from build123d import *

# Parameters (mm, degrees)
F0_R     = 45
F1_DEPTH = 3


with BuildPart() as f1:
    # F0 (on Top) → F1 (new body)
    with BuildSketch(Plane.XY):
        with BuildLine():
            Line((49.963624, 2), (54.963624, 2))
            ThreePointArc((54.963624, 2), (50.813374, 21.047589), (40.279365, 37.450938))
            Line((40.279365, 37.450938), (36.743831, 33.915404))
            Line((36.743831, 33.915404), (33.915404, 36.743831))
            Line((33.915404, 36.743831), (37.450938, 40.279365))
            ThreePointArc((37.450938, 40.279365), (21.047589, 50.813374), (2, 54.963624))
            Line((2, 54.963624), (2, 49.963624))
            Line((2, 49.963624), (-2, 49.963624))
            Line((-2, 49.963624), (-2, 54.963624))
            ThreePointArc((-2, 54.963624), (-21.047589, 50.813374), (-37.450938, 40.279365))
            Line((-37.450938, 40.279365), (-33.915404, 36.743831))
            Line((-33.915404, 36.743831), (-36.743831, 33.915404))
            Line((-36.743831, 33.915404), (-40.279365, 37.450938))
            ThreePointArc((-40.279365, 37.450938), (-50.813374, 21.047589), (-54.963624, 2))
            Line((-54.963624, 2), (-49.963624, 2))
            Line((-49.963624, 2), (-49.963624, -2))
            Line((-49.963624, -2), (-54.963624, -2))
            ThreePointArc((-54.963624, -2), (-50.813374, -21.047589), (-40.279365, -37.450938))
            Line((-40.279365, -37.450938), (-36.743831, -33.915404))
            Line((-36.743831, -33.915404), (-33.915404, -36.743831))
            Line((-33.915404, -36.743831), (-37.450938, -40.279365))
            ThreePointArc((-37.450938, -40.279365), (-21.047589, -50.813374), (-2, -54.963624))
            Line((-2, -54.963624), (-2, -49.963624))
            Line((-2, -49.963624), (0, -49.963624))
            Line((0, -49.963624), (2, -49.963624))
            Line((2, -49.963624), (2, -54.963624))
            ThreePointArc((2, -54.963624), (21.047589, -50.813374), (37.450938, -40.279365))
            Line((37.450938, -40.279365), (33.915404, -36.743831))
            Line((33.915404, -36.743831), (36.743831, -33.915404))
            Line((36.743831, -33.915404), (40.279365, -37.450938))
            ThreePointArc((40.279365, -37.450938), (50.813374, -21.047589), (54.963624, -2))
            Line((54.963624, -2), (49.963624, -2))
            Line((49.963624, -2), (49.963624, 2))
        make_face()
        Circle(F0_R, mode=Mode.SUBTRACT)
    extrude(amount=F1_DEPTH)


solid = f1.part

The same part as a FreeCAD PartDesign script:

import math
import FreeCAD as App
import Part
import Sketcher

doc = App.newDocument("Part")
body = doc.addObject("PartDesign::Body", "Body")

# Sketch on XY plane
sketch1 = doc.addObject("Sketcher::SketchObject", "Sketch")
body.addObject(sketch1)
sketch1.AttachmentSupport = (doc.XY_Plane, [""])
sketch1.MapMode = "FlatFace"
sketch1.addGeometry(Part.LineSegment(App.Vector(50, 2, 0), App.Vector(55, 2, 0)), False)
sketch1.addGeometry(Part.ArcOfCircle(Part.Circle(App.Vector(0, 0, 0), App.Vector(0, 0, 1), 55), math.radians(2), math.radians(43)), False)
sketch1.addGeometry(Part.LineSegment(App.Vector(40.3, 37.5, 0), App.Vector(36.7, 33.9, 0)), False)
sketch1.addGeometry(Part.LineSegment(App.Vector(36.7, 33.9, 0), App.Vector(33.9, 36.7, 0)), False)
sketch1.addGeometry(Part.LineSegment(App.Vector(33.9, 36.7, 0), App.Vector(37.5, 40.3, 0)), False)
sketch1.addGeometry(Part.ArcOfCircle(Part.Circle(App.Vector(0, 0, 0), App.Vector(0, 0, 1), 55), math.radians(47), math.radians(88)), False)
sketch1.addGeometry(Part.LineSegment(App.Vector(2, 55, 0), App.Vector(2, 50, 0)), False)
sketch1.addGeometry(Part.LineSegment(App.Vector(2, 50, 0), App.Vector(-2, 50, 0)), False)
sketch1.addGeometry(Part.LineSegment(App.Vector(-2, 50, 0), App.Vector(-2, 55, 0)), False)
sketch1.addGeometry(Part.ArcOfCircle(Part.Circle(App.Vector(0, 0, 0), App.Vector(0, 0, 1), 55), math.radians(92), math.radians(133)), False)
sketch1.addGeometry(Part.LineSegment(App.Vector(-37.5, 40.3, 0), App.Vector(-33.9, 36.7, 0)), False)
sketch1.addGeometry(Part.LineSegment(App.Vector(-33.9, 36.7, 0), App.Vector(-36.7, 33.9, 0)), False)
sketch1.addGeometry(Part.LineSegment(App.Vector(-36.7, 33.9, 0), App.Vector(-40.3, 37.5, 0)), False)
sketch1.addGeometry(Part.ArcOfCircle(Part.Circle(App.Vector(0, 0, 0), App.Vector(0, 0, 1), 55), math.radians(137), math.radians(178)), False)
sketch1.addGeometry(Part.LineSegment(App.Vector(-55, 2, 0), App.Vector(-50, 2, 0)), False)
sketch1.addGeometry(Part.LineSegment(App.Vector(-50, 2, 0), App.Vector(-50, -2, 0)), False)
sketch1.addGeometry(Part.LineSegment(App.Vector(-50, -2, 0), App.Vector(-55, -2, 0)), False)
sketch1.addGeometry(Part.ArcOfCircle(Part.Circle(App.Vector(0, 0, 0), App.Vector(0, 0, 1), 55), math.radians(-178), math.radians(-137)), False)
sketch1.addGeometry(Part.LineSegment(App.Vector(-40.3, -37.5, 0), App.Vector(-36.7, -33.9, 0)), False)
sketch1.addGeometry(Part.LineSegment(App.Vector(-36.7, -33.9, 0), App.Vector(-33.9, -36.7, 0)), False)
sketch1.addGeometry(Part.LineSegment(App.Vector(-33.9, -36.7, 0), App.Vector(-37.5, -40.3, 0)), False)
sketch1.addGeometry(Part.ArcOfCircle(Part.Circle(App.Vector(0, 0, 0), App.Vector(0, 0, 1), 55), math.radians(-133), math.radians(-92)), False)
sketch1.addGeometry(Part.LineSegment(App.Vector(-2, -55, 0), App.Vector(-2, -50, 0)), False)
sketch1.addGeometry(Part.LineSegment(App.Vector(-2, -50, 0), App.Vector(2, -50, 0)), False)
sketch1.addGeometry(Part.LineSegment(App.Vector(2, -50, 0), App.Vector(2, -55, 0)), False)
sketch1.addGeometry(Part.ArcOfCircle(Part.Circle(App.Vector(0, 0, 0), App.Vector(0, 0, 1), 55), math.radians(-88), math.radians(-47)), False)
sketch1.addGeometry(Part.LineSegment(App.Vector(37.5, -40.3, 0), App.Vector(33.9, -36.7, 0)), False)
sketch1.addGeometry(Part.LineSegment(App.Vector(33.9, -36.7, 0), App.Vector(36.7, -33.9, 0)), False)
sketch1.addGeometry(Part.LineSegment(App.Vector(36.7, -33.9, 0), App.Vector(40.3, -37.5, 0)), False)
sketch1.addGeometry(Part.ArcOfCircle(Part.Circle(App.Vector(0, 0, 0), App.Vector(0, 0, 1), 55), math.radians(-43), math.radians(-2)), False)
sketch1.addGeometry(Part.LineSegment(App.Vector(55, -2, 0), App.Vector(50, -2, 0)), False)
sketch1.addGeometry(Part.LineSegment(App.Vector(50, -2, 0), App.Vector(50, 2, 0)), False)
sketch1.addGeometry(Part.Circle(App.Vector(0, 0, 0), App.Vector(0, 0, 1), 45), False)
sketch1.addConstraint(Sketcher.Constraint("Coincident", 0, 2, 1, 1))
sketch1.addConstraint(Sketcher.Constraint("Coincident", 1, 2, 2, 1))
sketch1.addConstraint(Sketcher.Constraint("Coincident", 2, 2, 3, 1))
sketch1.addConstraint(Sketcher.Constraint("Coincident", 3, 2, 4, 1))
sketch1.addConstraint(Sketcher.Constraint("Coincident", 4, 2, 5, 1))
sketch1.addConstraint(Sketcher.Constraint("Coincident", 5, 2, 6, 1))
sketch1.addConstraint(Sketcher.Constraint("Coincident", 6, 2, 7, 1))
sketch1.addConstraint(Sketcher.Constraint("Coincident", 7, 2, 8, 1))
sketch1.addConstraint(Sketcher.Constraint("Coincident", 8, 2, 9, 1))
sketch1.addConstraint(Sketcher.Constraint("Coincident", 9, 2, 10, 1))
sketch1.addConstraint(Sketcher.Constraint("Coincident", 10, 2, 11, 1))
sketch1.addConstraint(Sketcher.Constraint("Coincident", 11, 2, 12, 1))
sketch1.addConstraint(Sketcher.Constraint("Coincident", 12, 2, 13, 1))
sketch1.addConstraint(Sketcher.Constraint("Coincident", 13, 2, 14, 1))
sketch1.addConstraint(Sketcher.Constraint("Coincident", 14, 2, 15, 1))
sketch1.addConstraint(Sketcher.Constraint("Coincident", 15, 2, 16, 1))
sketch1.addConstraint(Sketcher.Constraint("Coincident", 16, 2, 17, 1))
sketch1.addConstraint(Sketcher.Constraint("Coincident", 17, 2, 18, 1))
sketch1.addConstraint(Sketcher.Constraint("Coincident", 18, 2, 19, 1))
sketch1.addConstraint(Sketcher.Constraint("Coincident", 19, 2, 20, 1))
sketch1.addConstraint(Sketcher.Constraint("Coincident", 20, 2, 21, 1))
sketch1.addConstraint(Sketcher.Constraint("Coincident", 21, 2, 22, 1))
sketch1.addConstraint(Sketcher.Constraint("Coincident", 22, 2, 23, 1))
sketch1.addConstraint(Sketcher.Constraint("Coincident", 23, 2, 24, 1))
sketch1.addConstraint(Sketcher.Constraint("Coincident", 24, 2, 25, 1))
sketch1.addConstraint(Sketcher.Constraint("Coincident", 25, 2, 26, 1))
sketch1.addConstraint(Sketcher.Constraint("Coincident", 26, 2, 27, 1))
sketch1.addConstraint(Sketcher.Constraint("Coincident", 27, 2, 28, 1))
sketch1.addConstraint(Sketcher.Constraint("Coincident", 28, 2, 29, 1))
sketch1.addConstraint(Sketcher.Constraint("Coincident", 29, 2, 30, 1))
sketch1.addConstraint(Sketcher.Constraint("Coincident", 30, 2, 31, 1))
sketch1.addConstraint(Sketcher.Constraint("Coincident", 31, 2, 0, 1))
sketch1.addConstraint(Sketcher.Constraint("Horizontal", 0))
sketch1.addConstraint(Sketcher.Constraint("Vertical", 6))
sketch1.addConstraint(Sketcher.Constraint("Horizontal", 7))
sketch1.addConstraint(Sketcher.Constraint("Vertical", 8))
sketch1.addConstraint(Sketcher.Constraint("Horizontal", 14))
sketch1.addConstraint(Sketcher.Constraint("Vertical", 15))
sketch1.addConstraint(Sketcher.Constraint("Horizontal", 16))
sketch1.addConstraint(Sketcher.Constraint("Vertical", 22))
sketch1.addConstraint(Sketcher.Constraint("Horizontal", 23))
sketch1.addConstraint(Sketcher.Constraint("Vertical", 24))
sketch1.addConstraint(Sketcher.Constraint("Horizontal", 30))
sketch1.addConstraint(Sketcher.Constraint("Vertical", 31))
sketch1.addConstraint(Sketcher.Constraint("Coincident", 1, 3, -1, 1))
sketch1.addConstraint(Sketcher.Constraint("Coincident", 5, 3, -1, 1))
sketch1.addConstraint(Sketcher.Constraint("Coincident", 9, 3, -1, 1))
sketch1.addConstraint(Sketcher.Constraint("Coincident", 13, 3, -1, 1))
sketch1.addConstraint(Sketcher.Constraint("Coincident", 17, 3, -1, 1))
sketch1.addConstraint(Sketcher.Constraint("Coincident", 21, 3, -1, 1))
sketch1.addConstraint(Sketcher.Constraint("Coincident", 25, 3, -1, 1))
sketch1.addConstraint(Sketcher.Constraint("Coincident", 29, 3, -1, 1))
sketch1.addConstraint(Sketcher.Constraint("Coincident", 32, 3, -1, 1))
sketch1.addConstraint(Sketcher.Constraint("Equal", 1, 5))
sketch1.addConstraint(Sketcher.Constraint("Equal", 5, 9))
sketch1.addConstraint(Sketcher.Constraint("Equal", 9, 13))
sketch1.addConstraint(Sketcher.Constraint("Equal", 13, 17))
sketch1.addConstraint(Sketcher.Constraint("Equal", 17, 21))
sketch1.addConstraint(Sketcher.Constraint("Equal", 21, 25))
sketch1.addConstraint(Sketcher.Constraint("Equal", 25, 29))
sketch1.addConstraint(Sketcher.Constraint("Symmetric", 2, 2, 18, 2, -1, 1))
sketch1.addConstraint(Sketcher.Constraint("Symmetric", 3, 2, 19, 2, -1, 1))
sketch1.addConstraint(Sketcher.Constraint("Symmetric", 6, 2, 22, 2, -1, 1))
sketch1.addConstraint(Sketcher.Constraint("Symmetric", 10, 2, 26, 2, -1, 1))
sketch1.addConstraint(Sketcher.Constraint("Symmetric", 11, 2, 27, 2, -1, 1))
sketch1.addConstraint(Sketcher.Constraint("Symmetric", 14, 2, 30, 2, -1, 1))
sketch1.addConstraint(Sketcher.Constraint("Symmetric", 3, 2, 10, 2, -2))
sketch1.addConstraint(Sketcher.Constraint("Symmetric", 2, 2, 11, 2, -2))
sketch1.addConstraint(Sketcher.Constraint("Perpendicular", 2, 3))
sketch1.addConstraint(Sketcher.Constraint("Perpendicular", 3, 4))
sketch1.addConstraint(Sketcher.Constraint("Perpendicular", 4, 10))
sketch1.addConstraint(Sketcher.Constraint("Perpendicular", 10, 11))
sketch1.addConstraint(Sketcher.Constraint("Perpendicular", 11, 12))
sketch1.addConstraint(Sketcher.Constraint("Perpendicular", 12, 18))
sketch1.addConstraint(Sketcher.Constraint("Perpendicular", 19, 20))
sketch1.addConstraint(Sketcher.Constraint("Perpendicular", 20, 26))
sketch1.addConstraint(Sketcher.Constraint("Perpendicular", 27, 28))
sketch1.addConstraint(Sketcher.Constraint("Horizontal", 5, 2, 8, 2))
sketch1.addConstraint(Sketcher.Constraint("Horizontal", 0, 2, 13, 2))
sketch1.addConstraint(Sketcher.Constraint("Horizontal", 21, 2, 24, 2))
sketch1.addConstraint(Sketcher.Constraint("Horizontal", 16, 2, 29, 2))
sketch1.addConstraint(Sketcher.Constraint("Equal", 30, 6))
sketch1.addConstraint(Sketcher.Constraint("Equal", 23, 15))
sketch1.addConstraint(Sketcher.Constraint("Equal", 2, 4))
sketch1.addConstraint(Sketcher.Constraint("Diameter", 32, 90.0))
sketch1.addConstraint(Sketcher.Constraint("Radius", 1, 55.0))
sketch1.addConstraint(Sketcher.Constraint("DistanceX", 0, 1, 0, 2, 5.0))
sketch1.addConstraint(Sketcher.Constraint("DistanceX", 7, 2, 7, 1, 4.0))
sketch1.addConstraint(Sketcher.Constraint("Distance", 2, 5.0))
sketch1.addConstraint(Sketcher.Constraint("Distance", 3, 4.0))
pad1 = doc.addObject("PartDesign::Pad", "Pad")
body.addObject(pad1)
pad1.Profile = sketch1
pad1.Length = 3

doc.recompute()
